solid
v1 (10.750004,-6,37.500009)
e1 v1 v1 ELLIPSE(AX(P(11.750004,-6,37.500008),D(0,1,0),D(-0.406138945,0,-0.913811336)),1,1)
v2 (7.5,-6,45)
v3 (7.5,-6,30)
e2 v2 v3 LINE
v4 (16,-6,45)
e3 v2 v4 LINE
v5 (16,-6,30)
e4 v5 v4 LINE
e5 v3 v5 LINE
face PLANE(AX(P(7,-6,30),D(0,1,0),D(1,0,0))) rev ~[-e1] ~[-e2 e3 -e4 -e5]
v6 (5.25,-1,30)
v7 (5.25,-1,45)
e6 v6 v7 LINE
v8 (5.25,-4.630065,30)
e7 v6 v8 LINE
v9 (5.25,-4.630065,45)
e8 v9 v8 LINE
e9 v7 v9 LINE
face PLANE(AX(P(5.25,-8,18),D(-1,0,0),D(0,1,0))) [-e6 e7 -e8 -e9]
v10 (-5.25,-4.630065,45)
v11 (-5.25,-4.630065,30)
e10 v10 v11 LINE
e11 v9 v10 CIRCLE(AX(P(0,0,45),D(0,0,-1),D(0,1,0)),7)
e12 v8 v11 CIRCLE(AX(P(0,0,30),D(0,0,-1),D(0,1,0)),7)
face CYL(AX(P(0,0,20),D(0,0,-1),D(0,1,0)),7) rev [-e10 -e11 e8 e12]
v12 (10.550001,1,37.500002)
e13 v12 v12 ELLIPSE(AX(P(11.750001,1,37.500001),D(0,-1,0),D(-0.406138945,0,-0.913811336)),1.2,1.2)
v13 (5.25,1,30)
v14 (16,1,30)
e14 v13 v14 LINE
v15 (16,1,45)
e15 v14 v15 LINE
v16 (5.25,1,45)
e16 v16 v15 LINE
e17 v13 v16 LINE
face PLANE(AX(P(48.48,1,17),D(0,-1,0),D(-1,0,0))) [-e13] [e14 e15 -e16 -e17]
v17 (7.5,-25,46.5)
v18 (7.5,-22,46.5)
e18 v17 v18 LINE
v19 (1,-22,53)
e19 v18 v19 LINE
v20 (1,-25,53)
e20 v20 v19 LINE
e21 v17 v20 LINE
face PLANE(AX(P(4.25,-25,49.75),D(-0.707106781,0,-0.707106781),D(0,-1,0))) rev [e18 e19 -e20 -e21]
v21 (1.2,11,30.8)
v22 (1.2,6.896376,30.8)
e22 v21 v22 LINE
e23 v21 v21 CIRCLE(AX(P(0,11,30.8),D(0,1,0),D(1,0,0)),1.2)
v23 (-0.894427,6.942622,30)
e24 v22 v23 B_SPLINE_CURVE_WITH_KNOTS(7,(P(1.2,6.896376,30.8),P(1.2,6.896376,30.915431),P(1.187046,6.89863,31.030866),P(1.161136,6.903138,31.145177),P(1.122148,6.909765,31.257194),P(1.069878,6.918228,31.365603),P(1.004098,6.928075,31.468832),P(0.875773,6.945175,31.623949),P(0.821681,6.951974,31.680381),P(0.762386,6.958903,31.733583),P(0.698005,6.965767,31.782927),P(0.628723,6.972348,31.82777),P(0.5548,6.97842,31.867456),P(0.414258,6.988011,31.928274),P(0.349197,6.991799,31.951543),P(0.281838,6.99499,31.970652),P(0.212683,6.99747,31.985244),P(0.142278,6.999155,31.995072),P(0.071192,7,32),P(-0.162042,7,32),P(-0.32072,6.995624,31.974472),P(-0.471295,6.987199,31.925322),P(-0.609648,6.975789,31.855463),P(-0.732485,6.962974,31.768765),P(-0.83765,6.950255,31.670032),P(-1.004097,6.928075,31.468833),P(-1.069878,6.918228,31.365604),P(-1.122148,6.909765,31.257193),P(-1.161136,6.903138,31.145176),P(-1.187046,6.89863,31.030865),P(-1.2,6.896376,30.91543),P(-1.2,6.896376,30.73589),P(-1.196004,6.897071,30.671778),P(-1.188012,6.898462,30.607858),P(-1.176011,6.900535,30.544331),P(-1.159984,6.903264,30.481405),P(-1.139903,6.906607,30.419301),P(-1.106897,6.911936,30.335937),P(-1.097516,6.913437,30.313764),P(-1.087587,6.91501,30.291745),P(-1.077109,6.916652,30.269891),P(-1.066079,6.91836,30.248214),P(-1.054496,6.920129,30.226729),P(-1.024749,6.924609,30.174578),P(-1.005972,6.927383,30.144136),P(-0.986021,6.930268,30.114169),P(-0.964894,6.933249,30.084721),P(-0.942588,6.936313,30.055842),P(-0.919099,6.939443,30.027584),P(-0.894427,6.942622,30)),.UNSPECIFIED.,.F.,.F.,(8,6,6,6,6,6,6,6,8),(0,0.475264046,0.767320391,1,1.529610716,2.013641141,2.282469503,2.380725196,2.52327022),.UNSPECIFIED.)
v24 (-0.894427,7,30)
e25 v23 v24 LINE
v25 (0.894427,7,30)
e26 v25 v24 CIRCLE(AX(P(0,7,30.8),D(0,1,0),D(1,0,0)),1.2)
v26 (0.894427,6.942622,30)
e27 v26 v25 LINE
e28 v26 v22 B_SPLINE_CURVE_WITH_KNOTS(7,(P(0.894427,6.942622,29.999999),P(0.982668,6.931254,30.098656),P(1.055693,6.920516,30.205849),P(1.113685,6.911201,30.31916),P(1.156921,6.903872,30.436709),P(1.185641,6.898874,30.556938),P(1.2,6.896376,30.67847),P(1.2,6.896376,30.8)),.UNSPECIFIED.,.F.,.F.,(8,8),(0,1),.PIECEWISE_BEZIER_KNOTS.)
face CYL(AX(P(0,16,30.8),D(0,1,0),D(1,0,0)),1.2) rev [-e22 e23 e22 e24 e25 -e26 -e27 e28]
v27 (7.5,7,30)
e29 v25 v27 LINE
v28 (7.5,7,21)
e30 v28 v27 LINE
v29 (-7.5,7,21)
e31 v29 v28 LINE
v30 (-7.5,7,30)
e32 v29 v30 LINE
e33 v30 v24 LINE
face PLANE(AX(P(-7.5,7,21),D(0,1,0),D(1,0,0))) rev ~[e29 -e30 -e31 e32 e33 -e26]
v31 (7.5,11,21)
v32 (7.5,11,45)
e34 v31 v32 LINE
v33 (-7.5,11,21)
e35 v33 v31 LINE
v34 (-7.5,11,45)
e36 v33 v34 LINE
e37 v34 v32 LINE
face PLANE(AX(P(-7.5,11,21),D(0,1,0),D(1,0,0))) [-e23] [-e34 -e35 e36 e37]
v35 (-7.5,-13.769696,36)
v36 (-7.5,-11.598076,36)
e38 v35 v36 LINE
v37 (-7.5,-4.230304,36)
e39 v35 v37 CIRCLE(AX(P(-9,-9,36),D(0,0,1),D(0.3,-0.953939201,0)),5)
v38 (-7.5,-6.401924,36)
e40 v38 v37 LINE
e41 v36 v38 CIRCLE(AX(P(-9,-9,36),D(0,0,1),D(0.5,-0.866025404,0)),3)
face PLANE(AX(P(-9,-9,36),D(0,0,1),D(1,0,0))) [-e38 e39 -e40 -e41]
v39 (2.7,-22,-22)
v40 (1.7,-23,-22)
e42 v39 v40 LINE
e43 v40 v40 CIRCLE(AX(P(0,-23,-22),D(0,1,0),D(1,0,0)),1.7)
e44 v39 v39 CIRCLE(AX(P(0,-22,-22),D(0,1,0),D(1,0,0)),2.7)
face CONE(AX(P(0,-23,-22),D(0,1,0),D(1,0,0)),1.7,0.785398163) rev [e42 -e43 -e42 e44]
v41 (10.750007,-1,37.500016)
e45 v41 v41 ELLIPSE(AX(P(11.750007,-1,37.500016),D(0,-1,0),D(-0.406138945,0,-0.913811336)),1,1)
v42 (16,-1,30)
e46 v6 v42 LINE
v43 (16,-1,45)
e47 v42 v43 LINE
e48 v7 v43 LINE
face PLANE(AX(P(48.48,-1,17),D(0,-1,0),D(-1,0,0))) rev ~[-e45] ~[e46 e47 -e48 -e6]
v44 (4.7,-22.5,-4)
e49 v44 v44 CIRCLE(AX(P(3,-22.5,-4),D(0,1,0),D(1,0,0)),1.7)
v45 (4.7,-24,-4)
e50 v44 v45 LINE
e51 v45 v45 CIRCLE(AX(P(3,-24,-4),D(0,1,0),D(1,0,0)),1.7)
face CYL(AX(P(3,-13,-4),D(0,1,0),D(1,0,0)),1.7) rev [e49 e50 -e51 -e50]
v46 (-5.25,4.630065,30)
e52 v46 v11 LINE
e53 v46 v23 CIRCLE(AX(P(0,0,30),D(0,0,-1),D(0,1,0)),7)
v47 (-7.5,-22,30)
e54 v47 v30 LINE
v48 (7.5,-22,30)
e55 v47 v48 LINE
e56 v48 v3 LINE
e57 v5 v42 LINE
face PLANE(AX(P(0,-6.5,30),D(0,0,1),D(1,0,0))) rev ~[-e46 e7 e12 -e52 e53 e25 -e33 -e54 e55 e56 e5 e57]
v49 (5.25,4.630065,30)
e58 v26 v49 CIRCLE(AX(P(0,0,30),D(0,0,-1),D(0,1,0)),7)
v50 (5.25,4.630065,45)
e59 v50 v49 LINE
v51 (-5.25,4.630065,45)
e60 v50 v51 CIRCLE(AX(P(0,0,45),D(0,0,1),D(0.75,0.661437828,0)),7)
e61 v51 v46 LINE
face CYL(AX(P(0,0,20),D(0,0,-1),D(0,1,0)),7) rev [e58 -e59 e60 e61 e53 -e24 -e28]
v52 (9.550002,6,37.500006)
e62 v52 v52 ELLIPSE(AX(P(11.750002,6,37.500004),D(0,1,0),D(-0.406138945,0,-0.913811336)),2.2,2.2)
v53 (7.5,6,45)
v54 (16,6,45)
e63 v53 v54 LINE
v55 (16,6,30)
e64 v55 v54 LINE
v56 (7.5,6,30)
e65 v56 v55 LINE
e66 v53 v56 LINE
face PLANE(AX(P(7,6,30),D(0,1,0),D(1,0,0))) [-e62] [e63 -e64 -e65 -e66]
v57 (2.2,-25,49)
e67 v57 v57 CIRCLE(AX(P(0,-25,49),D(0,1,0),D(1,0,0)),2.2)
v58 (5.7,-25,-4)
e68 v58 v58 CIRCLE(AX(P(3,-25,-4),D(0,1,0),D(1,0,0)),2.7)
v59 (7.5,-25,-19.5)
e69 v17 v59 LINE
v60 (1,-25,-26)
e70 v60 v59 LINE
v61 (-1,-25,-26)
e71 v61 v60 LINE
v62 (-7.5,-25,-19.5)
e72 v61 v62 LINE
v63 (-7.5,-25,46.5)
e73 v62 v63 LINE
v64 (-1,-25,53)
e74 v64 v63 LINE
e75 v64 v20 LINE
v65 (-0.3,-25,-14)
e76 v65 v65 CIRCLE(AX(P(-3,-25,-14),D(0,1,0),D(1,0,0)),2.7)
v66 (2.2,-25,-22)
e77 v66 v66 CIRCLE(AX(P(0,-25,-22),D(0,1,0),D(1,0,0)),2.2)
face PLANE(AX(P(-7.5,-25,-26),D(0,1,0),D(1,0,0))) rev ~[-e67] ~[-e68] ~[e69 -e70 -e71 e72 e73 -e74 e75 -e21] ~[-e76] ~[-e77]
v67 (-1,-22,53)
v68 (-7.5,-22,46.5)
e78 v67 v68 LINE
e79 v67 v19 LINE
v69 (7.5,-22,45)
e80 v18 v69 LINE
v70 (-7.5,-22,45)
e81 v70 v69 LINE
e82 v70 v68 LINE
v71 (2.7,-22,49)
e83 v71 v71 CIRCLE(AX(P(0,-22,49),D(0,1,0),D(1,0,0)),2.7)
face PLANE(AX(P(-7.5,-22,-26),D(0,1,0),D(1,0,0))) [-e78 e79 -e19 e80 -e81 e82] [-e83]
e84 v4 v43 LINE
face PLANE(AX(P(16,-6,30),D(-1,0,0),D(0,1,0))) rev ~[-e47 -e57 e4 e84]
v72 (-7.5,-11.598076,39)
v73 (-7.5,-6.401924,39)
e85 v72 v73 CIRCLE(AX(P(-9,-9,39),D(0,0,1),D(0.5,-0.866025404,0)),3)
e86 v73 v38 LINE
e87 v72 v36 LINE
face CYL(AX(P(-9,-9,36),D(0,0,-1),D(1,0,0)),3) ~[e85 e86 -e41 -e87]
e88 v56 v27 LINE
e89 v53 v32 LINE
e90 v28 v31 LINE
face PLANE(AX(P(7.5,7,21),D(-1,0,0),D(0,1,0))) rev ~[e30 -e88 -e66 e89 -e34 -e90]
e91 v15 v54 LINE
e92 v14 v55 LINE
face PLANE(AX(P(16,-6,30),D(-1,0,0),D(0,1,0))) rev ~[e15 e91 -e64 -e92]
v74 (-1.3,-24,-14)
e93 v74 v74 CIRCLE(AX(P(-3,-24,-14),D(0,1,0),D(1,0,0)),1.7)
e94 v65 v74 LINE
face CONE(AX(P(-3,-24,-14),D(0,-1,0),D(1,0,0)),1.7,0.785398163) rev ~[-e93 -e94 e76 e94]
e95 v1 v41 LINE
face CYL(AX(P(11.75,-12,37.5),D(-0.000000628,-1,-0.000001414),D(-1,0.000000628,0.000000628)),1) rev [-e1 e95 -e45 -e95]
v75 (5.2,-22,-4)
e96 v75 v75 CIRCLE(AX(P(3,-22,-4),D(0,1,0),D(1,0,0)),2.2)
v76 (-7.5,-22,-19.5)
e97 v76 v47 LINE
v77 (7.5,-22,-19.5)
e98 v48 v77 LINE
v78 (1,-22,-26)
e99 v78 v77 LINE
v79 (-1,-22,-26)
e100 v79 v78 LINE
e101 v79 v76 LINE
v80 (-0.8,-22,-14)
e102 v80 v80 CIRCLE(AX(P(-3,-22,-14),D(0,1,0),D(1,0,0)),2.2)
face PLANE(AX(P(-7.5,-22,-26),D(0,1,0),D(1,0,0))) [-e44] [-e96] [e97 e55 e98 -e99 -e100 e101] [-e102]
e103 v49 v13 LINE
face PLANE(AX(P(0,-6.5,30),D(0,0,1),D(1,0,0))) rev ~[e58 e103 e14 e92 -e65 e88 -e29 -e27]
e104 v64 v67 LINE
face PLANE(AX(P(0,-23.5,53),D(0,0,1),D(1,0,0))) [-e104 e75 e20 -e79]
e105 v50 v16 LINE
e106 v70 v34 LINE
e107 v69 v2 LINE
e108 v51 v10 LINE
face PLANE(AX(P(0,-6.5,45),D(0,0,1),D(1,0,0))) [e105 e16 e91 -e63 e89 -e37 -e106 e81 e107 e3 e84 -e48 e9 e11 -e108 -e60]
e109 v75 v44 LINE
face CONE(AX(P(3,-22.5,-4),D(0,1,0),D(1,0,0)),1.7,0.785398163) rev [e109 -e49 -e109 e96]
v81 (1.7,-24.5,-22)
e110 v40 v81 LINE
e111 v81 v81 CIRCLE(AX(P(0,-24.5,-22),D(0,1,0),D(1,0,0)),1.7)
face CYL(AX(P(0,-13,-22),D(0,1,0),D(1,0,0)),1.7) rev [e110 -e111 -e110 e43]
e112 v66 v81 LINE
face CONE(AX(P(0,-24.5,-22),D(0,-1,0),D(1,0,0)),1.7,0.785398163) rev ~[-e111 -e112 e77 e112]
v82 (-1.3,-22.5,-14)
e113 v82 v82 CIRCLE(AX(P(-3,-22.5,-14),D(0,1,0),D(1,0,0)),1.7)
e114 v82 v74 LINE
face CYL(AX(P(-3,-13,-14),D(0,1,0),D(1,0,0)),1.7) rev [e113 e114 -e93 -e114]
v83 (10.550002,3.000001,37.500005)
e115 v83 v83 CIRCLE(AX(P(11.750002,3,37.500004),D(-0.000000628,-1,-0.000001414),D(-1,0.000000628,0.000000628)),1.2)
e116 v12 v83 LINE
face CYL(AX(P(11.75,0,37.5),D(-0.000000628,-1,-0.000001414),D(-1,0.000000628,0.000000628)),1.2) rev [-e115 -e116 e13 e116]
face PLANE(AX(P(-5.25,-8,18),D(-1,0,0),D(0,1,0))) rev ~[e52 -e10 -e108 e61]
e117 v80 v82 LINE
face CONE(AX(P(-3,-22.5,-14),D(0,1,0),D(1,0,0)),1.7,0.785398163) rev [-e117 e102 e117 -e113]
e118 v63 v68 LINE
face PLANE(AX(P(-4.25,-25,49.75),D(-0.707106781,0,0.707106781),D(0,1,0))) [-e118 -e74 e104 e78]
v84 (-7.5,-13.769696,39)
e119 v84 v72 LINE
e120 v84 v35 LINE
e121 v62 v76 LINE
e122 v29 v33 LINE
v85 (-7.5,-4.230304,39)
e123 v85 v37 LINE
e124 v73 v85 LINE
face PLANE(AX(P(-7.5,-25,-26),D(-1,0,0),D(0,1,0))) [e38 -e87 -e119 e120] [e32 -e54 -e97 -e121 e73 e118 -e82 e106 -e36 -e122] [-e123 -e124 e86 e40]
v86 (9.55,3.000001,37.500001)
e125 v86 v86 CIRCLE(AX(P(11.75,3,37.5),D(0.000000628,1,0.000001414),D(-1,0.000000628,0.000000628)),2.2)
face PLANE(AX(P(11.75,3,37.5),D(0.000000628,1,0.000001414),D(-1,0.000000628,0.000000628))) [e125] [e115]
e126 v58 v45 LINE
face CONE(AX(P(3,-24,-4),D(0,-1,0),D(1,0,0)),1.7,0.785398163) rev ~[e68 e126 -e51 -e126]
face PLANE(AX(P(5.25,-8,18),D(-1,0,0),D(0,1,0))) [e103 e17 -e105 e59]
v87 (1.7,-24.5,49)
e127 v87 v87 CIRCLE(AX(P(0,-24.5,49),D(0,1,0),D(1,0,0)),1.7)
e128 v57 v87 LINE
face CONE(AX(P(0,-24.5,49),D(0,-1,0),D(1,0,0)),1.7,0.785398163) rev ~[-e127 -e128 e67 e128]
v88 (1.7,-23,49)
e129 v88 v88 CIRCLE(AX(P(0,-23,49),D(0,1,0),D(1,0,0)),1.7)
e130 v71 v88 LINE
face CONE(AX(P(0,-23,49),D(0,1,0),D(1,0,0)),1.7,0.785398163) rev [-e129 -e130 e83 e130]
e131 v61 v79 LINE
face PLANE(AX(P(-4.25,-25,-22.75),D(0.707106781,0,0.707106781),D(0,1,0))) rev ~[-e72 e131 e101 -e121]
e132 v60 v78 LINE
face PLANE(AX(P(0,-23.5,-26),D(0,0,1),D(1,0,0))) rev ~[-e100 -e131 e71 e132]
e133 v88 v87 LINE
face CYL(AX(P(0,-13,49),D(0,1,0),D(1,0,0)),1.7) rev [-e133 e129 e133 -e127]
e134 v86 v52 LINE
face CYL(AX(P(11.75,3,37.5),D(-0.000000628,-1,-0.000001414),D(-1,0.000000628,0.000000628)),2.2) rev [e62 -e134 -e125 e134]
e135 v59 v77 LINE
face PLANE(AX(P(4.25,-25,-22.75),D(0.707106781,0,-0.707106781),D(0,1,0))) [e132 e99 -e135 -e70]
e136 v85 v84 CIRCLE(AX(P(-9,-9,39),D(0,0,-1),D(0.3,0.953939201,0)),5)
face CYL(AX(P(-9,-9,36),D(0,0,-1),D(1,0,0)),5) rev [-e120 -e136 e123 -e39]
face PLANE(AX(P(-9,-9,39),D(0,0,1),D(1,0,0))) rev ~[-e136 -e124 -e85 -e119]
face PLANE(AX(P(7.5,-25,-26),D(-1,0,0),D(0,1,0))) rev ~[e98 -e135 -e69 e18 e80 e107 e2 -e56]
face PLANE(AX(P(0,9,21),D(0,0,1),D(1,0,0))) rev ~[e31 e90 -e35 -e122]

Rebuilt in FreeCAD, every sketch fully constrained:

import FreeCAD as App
import Part
import Sketcher
Q = App.Units.Quantity


def edges_at(feature, points):
    """Names of the edges that pass closest to the given points."""
    edges = feature.Shape.Edges
    near = lambda p: min(range(len(edges)), key=lambda i: edges[i].distToShape(Part.Vertex(*p))[0])
    return sorted({f"Edge{near(p) + 1}" for p in points})


def add_polygon(sketch, points):
    """Adds a closed chain of lines whose ends are joined by coincident constraints."""
    first, n = sketch.GeometryCount, len(points)
    for a, b in zip(points, points[1:] + points[:1]):
        sketch.addGeometry(Part.LineSegment(App.Vector(*a, 0), App.Vector(*b, 0)), False)
    for i in range(n):
        sketch.addConstraint(Sketcher.Constraint("Coincident", first + i, 2, first + (i + 1) % n, 1))

doc = App.newDocument("Part")
body = doc.addObject("PartDesign::Body", "Body")

sketch1 = doc.addObject("Sketcher::SketchObject", "Sketch")
body.addObject(sketch1)
sketch1.AttachmentSupport = (doc.XY_Plane, [""])
sketch1.MapMode = "FlatFace"
sketch1.AttachmentOffset = App.Placement(App.Vector(0, 0, 36), App.Rotation())
sketch1.addGeometry(Part.Circle(App.Vector(-9, -9, 0), App.Vector(0, 0, 1), 3), False)
sketch1.addConstraint(Sketcher.Constraint("Diameter", 0, Q("6 mm")))
sketch1.addConstraint(Sketcher.Constraint("DistanceX", 0, 3, -1, 1, Q("9 mm")))
sketch1.addConstraint(Sketcher.Constraint("DistanceY", 0, 3, -1, 1, Q("9 mm")))
pad1 = doc.addObject("PartDesign::Pad", "Pad")
body.addObject(pad1)
pad1.Profile = sketch1
pad1.Length = 3
body2 = doc.addObject("PartDesign::Body", "Body001")

sketch2 = doc.addObject("Sketcher::SketchObject", "Sketch001")
body2.addObject(sketch2)
sketch2.AttachmentSupport = (doc.getObject("XY_Plane001"), [""])
sketch2.MapMode = "FlatFace"
sketch2.AttachmentOffset = App.Placement(App.Vector(0, 0, 36), App.Rotation())
sketch2.addGeometry(Part.Circle(App.Vector(-9, -9, 0), App.Vector(0, 0, 1), 5), False)
sketch2.addConstraint(Sketcher.Constraint("Diameter", 0, Q("10 mm")))
sketch2.addConstraint(Sketcher.Constraint("DistanceX", 0, 3, -1, 1, Q("9 mm")))
sketch2.addConstraint(Sketcher.Constraint("DistanceY", 0, 3, -1, 1, Q("9 mm")))
pad2 = doc.addObject("PartDesign::Pad", "Pad001")
body2.addObject(pad2)
pad2.Profile = sketch2
pad2.Length = 3
doc.recompute()

boolean = doc.addObject("PartDesign::Boolean", "Boolean")
body2.addObject(boolean)
boolean.Type = "Cut"
boolean.addObjects([body])
body3 = doc.addObject("PartDesign::Body", "Body002")

sketch3 = doc.addObject("Sketcher::SketchObject", "Sketch002")
body3.addObject(sketch3)
sketch3.AttachmentSupport = (doc.getObject("XZ_Plane002"), [""])
sketch3.MapMode = "FlatFace"
sketch3.AttachmentOffset = App.Placement(App.Vector(0, 0, -16), App.Rotation())
sketch3.addGeometry(Part.Circle(App.Vector(0, 35.8, 0), App.Vector(0, 0, 1), 1.2), False)
sketch3.addConstraint(Sketcher.Constraint("PointOnObject", 0, 3, -2))
sketch3.addConstraint(Sketcher.Constraint("Diameter", 0, Q("2.4 mm")))
sketch3.addConstraint(Sketcher.Constraint("DistanceY", -1, 1, 0, 3, Q("35.8 mm")))
pad3 = doc.addObject("PartDesign::Pad", "Pad002")
body3.addObject(pad3)
pad3.Profile = sketch3
pad3.Length = 13
body4 = doc.addObject("PartDesign::Body", "Body003")

sketch4 = doc.addObject("Sketcher::SketchObject", "Sketch003")
body4.addObject(sketch4)
sketch4.AttachmentSupport = (doc.getObject("XY_Plane003"), [""])
sketch4.MapMode = "FlatFace"
sketch4.addGeometry(Part.Circle(App.Vector(0, 0, 0), App.Vector(0, 0, 1), 1), False)
sketch4.addConstraint(Sketcher.Constraint("Coincident", 0, 3, -1, 1))
sketch4.addConstraint(Sketcher.Constraint("Diameter", 0, Q("2 mm")))
pad4 = doc.addObject("PartDesign::Pad", "Pad003")
body4.addObject(pad4)
pad4.Profile = sketch4
pad4.Length = 12
body5 = doc.addObject("PartDesign::Body", "Body004")
doc.recompute()

body4.Placement = App.Placement(App.Vector(0, 0, 0), App.Rotation(App.Vector(1, 0, 0), 89.999919))
boolean2 = doc.addObject("PartDesign::Boolean", "Boolean001")
body5.addObject(boolean2)
boolean2.Type = "Fuse"
boolean2.addObjects([body4])
body6 = doc.addObject("PartDesign::Body", "Body005")
doc.recompute()

body5.Placement = App.Placement(App.Vector(0, 0, 0), App.Rotation(App.Vector(0, 1, 0), 359.999964))
boolean3 = doc.addObject("PartDesign::Boolean", "Boolean002")
body6.addObject(boolean3)
boolean3.Type = "Fuse"
boolean3.addObjects([body5])
body7 = doc.addObject("PartDesign::Body", "Body006")
doc.recompute()

body6.Placement = App.Placement(App.Vector(11.75, -12, 42.5), App.Rotation(App.Vector(0, 0, 1), 179.999964))
boolean4 = doc.addObject("PartDesign::Boolean", "Boolean003")
body7.addObject(boolean4)
boolean4.Type = "Fuse"
boolean4.addObjects([body6])
body8 = doc.addObject("PartDesign::Body", "Body007")

sketch5 = doc.addObject("Sketcher::SketchObject", "Sketch004")
body8.addObject(sketch5)
sketch5.AttachmentSupport = (doc.getObject("XY_Plane007"), [""])
sketch5.MapMode = "FlatFace"
sketch5.addGeometry(Part.Circle(App.Vector(0, 0, 0), App.Vector(0, 0, 1), 2.2), False)
sketch5.addConstraint(Sketcher.Constraint("Coincident", 0, 3, -1, 1))
sketch5.addConstraint(Sketcher.Constraint("Diameter", 0, Q("4.4 mm")))
pad5 = doc.addObject("PartDesign::Pad", "Pad004")
body8.addObject(pad5)
pad5.Profile = sketch5
pad5.Length = 12
body9 = doc.addObject("PartDesign::Body", "Body008")
doc.recompute()

body8.Placement = App.Placement(App.Vector(0, 0, 0), App.Rotation(App.Vector(1, 0, 0), 89.999919))
boolean5 = doc.addObject("PartDesign::Boolean", "Boolean004")
body9.addObject(boolean5)
boolean5.Type = "Fuse"
boolean5.addObjects([body8])
body10 = doc.addObject("PartDesign::Body", "Body009")
doc.recompute()

body9.Placement = App.Placement(App.Vector(0, 0, 0), App.Rotation(App.Vector(0, 1, 0), 359.999964))
boolean6 = doc.addObject("PartDesign::Boolean", "Boolean005")
body10.addObject(boolean6)
boolean6.Type = "Fuse"
boolean6.addObjects([body9])
body11 = doc.addObject("PartDesign::Body", "Body010")
doc.recompute()

body10.Placement = App.Placement(App.Vector(11.75, 3, 42.5), App.Rotation(App.Vector(0, 0, 1), 179.999964))
boolean7 = doc.addObject("PartDesign::Boolean", "Boolean006")
body11.addObject(boolean7)
boolean7.Type = "Fuse"
boolean7.addObjects([body10])
body12 = doc.addObject("PartDesign::Body", "Body011")

sketch6 = doc.addObject("Sketcher::SketchObject", "Sketch005")
body12.addObject(sketch6)
sketch6.AttachmentSupport = (doc.getObject("XY_Plane011"), [""])
sketch6.MapMode = "FlatFace"
sketch6.addGeometry(Part.Circle(App.Vector(0, 0, 0), App.Vector(0, 0, 1), 1.2), False)
sketch6.addConstraint(Sketcher.Constraint("Coincident", 0, 3, -1, 1))
sketch6.addConstraint(Sketcher.Constraint("Diameter", 0, Q("2.4 mm")))
pad6 = doc.addObject("PartDesign::Pad", "Pad005")
body12.addObject(pad6)
pad6.Profile = sketch6
pad6.Length = 12
body13 = doc.addObject("PartDesign::Body", "Body012")
doc.recompute()

body12.Placement = App.Placement(App.Vector(0, 0, 0), App.Rotation(App.Vector(1, 0, 0), 89.999919))
boolean8 = doc.addObject("PartDesign::Boolean", "Boolean007")
body13.addObject(boolean8)
boolean8.Type = "Fuse"
boolean8.addObjects([body12])
body14 = doc.addObject("PartDesign::Body", "Body013")
doc.recompute()

body13.Placement = App.Placement(App.Vector(0, 0, 0), App.Rotation(App.Vector(0, 1, 0), 359.999964))
boolean9 = doc.addObject("PartDesign::Boolean", "Boolean008")
body14.addObject(boolean9)
boolean9.Type = "Fuse"
boolean9.addObjects([body13])
body15 = doc.addObject("PartDesign::Body", "Body014")
doc.recompute()

body14.Placement = App.Placement(App.Vector(11.75, 0, 42.5), App.Rotation(App.Vector(0, 0, 1), 179.999964))
boolean10 = doc.addObject("PartDesign::Boolean", "Boolean009")
body15.addObject(boolean10)
boolean10.Type = "Fuse"
boolean10.addObjects([body14])
doc.recompute()

boolean11 = doc.addObject("PartDesign::Boolean", "Boolean010")
body15.addObject(boolean11)
boolean11.Type = "Fuse"
boolean11.addObjects([body11])
doc.recompute()

boolean12 = doc.addObject("PartDesign::Boolean", "Boolean011")
body15.addObject(boolean12)
boolean12.Type = "Fuse"
boolean12.addObjects([body7])
body16 = doc.addObject("PartDesign::Body", "Body015")

sketch7 = doc.addObject("Sketcher::SketchObject", "Sketch006")
body16.addObject(sketch7)
sketch7.AttachmentSupport = (doc.getObject("XY_Plane015"), [""])
sketch7.MapMode = "FlatFace"
sketch7.AttachmentOffset = App.Placement(App.Vector(0, 0, 22), App.Rotation())
add_polygon(sketch7, [(48.5, -1), (48.5, 1), (-0.5, 1), (-0.5, -1)])
sketch7.addConstraint(Sketcher.Constraint("Vertical", 0))
sketch7.addConstraint(Sketcher.Constraint("Horizontal", 1))
sketch7.addConstraint(Sketcher.Constraint("Vertical", 2))
sketch7.addConstraint(Sketcher.Constraint("Horizontal", 3))
sketch7.addConstraint(Sketcher.Constraint("DistanceX", 1, 2, 1, 1, Q("49 mm")))
sketch7.addConstraint(Sketcher.Constraint("DistanceY", 0, 1, 0, 2, Q("2 mm")))
sketch7.addConstraint(Sketcher.Constraint("DistanceY", -1, 1, 0, 2, Q("1 mm")))
sketch7.addConstraint(Sketcher.Constraint("DistanceX", -1, 1, 0, 2, Q("48.48 mm")))
pad7 = doc.addObject("PartDesign::Pad", "Pad006")
body16.addObject(pad7)
pad7.Profile = sketch7
pad7.Length = 32
body17 = doc.addObject("PartDesign::Body", "Body016")

sketch8 = doc.addObject("Sketcher::SketchObject", "Sketch007")
body17.addObject(sketch8)
sketch8.AttachmentSupport = (doc.getObject("XY_Plane016"), [""])
sketch8.MapMode = "FlatFace"
sketch8.AttachmentOffset = App.Placement(App.Vector(0, 0, 35), App.Rotation())
add_polygon(sketch8, [(7, 6), (7, -6), (16, -6), (16, 6)])
sketch8.addConstraint(Sketcher.Constraint("Vertical", 0))
sketch8.addConstraint(Sketcher.Constraint("Horizontal", 1))
sketch8.addConstraint(Sketcher.Constraint("Vertical", 2))
sketch8.addConstraint(Sketcher.Constraint("Horizontal", 3))
sketch8.addConstraint(Sketcher.Constraint("DistanceX", 1, 1, 1, 2, Q("9 mm")))
sketch8.addConstraint(Sketcher.Constraint("DistanceY", 0, 2, 0, 1, Q("12 mm")))
sketch8.addConstraint(Sketcher.Constraint("DistanceX", -1, 1, 0, 2, Q("7 mm")))
sketch8.addConstraint(Sketcher.Constraint("DistanceY", 0, 2, -1, 1, Q("6 mm")))
pad8 = doc.addObject("PartDesign::Pad", "Pad007")
body17.addObject(pad8)
pad8.Profile = sketch8
pad8.Length = 15
body18 = doc.addObject("PartDesign::Body", "Body017")

sketch9 = doc.addObject("Sketcher::SketchObject", "Sketch008")
body18.addObject(sketch9)
sketch9.AttachmentSupport = (doc.getObject("XY_Plane017"), [""])
sketch9.MapMode = "FlatFace"
sketch9.AttachmentOffset = App.Placement(App.Vector(0, 0, 18), App.Rotation())
add_polygon(sketch9, [(-8, 5), (-8, -5), (8, -5), (8, 5)])
sketch9.addConstraint(Sketcher.Constraint("Vertical", 0))
sketch9.addConstraint(Sketcher.Constraint("Horizontal", 1))
sketch9.addConstraint(Sketcher.Constraint("Vertical", 2))
sketch9.addConstraint(Sketcher.Constraint("Horizontal", 3))
sketch9.addConstraint(Sketcher.Constraint("Symmetric", 0, 2, 2, 2, -1, 1))
sketch9.addConstraint(Sketcher.Constraint("DistanceX", 1, 1, 1, 2, Q("16 mm")))
sketch9.addConstraint(Sketcher.Constraint("DistanceY", 0, 2, 0, 1, Q("10.5 mm")))
pad9 = doc.addObject("PartDesign::Pad", "Pad008")
body18.addObject(pad9)
pad9.Profile = sketch9
pad9.Length = 28
body19 = doc.addObject("PartDesign::Body", "Body018")

sketch10 = doc.addObject("Sketcher::SketchObject", "Sketch009")
body19.addObject(sketch10)
sketch10.AttachmentSupport = (doc.getObject("XY_Plane018"), [""])
sketch10.MapMode = "FlatFace"
sketch10.AttachmentOffset = App.Placement(App.Vector(0, 0, 20), App.Rotation())
sketch10.addGeometry(Part.Circle(App.Vector(0, 0, 0), App.Vector(0, 0, 1), 7), False)
sketch10.addConstraint(Sketcher.Constraint("Coincident", 0, 3, -1, 1))
sketch10.addConstraint(Sketcher.Constraint("Diameter", 0, Q("14 mm")))
pad10 = doc.addObject("PartDesign::Pad", "Pad009")
body19.addObject(pad10)
pad10.Profile = sketch10
pad10.Length = 26
doc.recompute()

boolean13 = doc.addObject("PartDesign::Boolean", "Boolean012")
body19.addObject(boolean13)
boolean13.Type = "Common"
boolean13.addObjects([body18])
body20 = doc.addObject("PartDesign::Body", "Body019")
doc.recompute()

body19.Placement = App.Placement(App.Vector(0, 0, 5), App.Rotation(App.Vector(0, 0, 1), 90))
boolean14 = doc.addObject("PartDesign::Boolean", "Boolean013")
body20.addObject(boolean14)
boolean14.Type = "Fuse"
boolean14.addObjects([body19])
body21 = doc.addObject("PartDesign::Body", "Body020")

sketch11 = doc.addObject("Sketcher::SketchObject", "Sketch010")
body21.addObject(sketch11)
sketch11.AttachmentSupport = (doc.getObject("XY_Plane020"), [""])
sketch11.MapMode = "FlatFace"
sketch11.AttachmentOffset = App.Placement(App.Vector(0, 0, 35), App.Rotation())
add_polygon(sketch11, [(-8, 9), (-8, -22), (8, -22), (8, 9)])
sketch11.addConstraint(Sketcher.Constraint("Vertical", 0))
sketch11.addConstraint(Sketcher.Constraint("Horizontal", 1))
sketch11.addConstraint(Sketcher.Constraint("Vertical", 2))
sketch11.addConstraint(Sketcher.Constraint("Horizontal", 3))
sketch11.addConstraint(Sketcher.Constraint("DistanceX", 1, 1, 1, 2, Q("15 mm")))
sketch11.addConstraint(Sketcher.Constraint("DistanceY", 0, 2, 0, 1, Q("31 mm")))
sketch11.addConstraint(Sketcher.Constraint("DistanceY", 0, 2, -1, 1, Q("22 mm")))
sketch11.addConstraint(Sketcher.Constraint("DistanceX", 0, 2, -1, 1, Q("7.5 mm")))
pad11 = doc.addObject("PartDesign::Pad", "Pad010")
body21.addObject(pad11)
pad11.Profile = sketch11
pad11.Length = 15
doc.recompute()

boolean15 = doc.addObject("PartDesign::Boolean", "Boolean014")
body21.addObject(boolean15)
boolean15.Type = "Cut"
boolean15.addObjects([body20])
doc.recompute()

boolean16 = doc.addObject("PartDesign::Boolean", "Boolean015")
body21.addObject(boolean16)
boolean16.Type = "Fuse"
boolean16.addObjects([body17])
doc.recompute()

boolean17 = doc.addObject("PartDesign::Boolean", "Boolean016")
body21.addObject(boolean17)
boolean17.Type = "Cut"
boolean17.addObjects([body16])
doc.recompute()

boolean18 = doc.addObject("PartDesign::Boolean", "Boolean017")
body21.addObject(boolean18)
boolean18.Type = "Cut"
boolean18.addObjects([body15])
body22 = doc.addObject("PartDesign::Body", "Body021")

sketch12 = doc.addObject("Sketcher::SketchObject", "Sketch011")
body22.addObject(sketch12)
sketch12.AttachmentSupport = (doc.getObject("XY_Plane021"), [""])
sketch12.MapMode = "FlatFace"
sketch12.AttachmentOffset = App.Placement(App.Vector(0, 0, 26), App.Rotation())
add_polygon(sketch12, [(-7.5, 11), (-7.5, 7), (7.5, 7), (7.5, 11)])
sketch12.addConstraint(Sketcher.Constraint("Vertical", 0))
sketch12.addConstraint(Sketcher.Constraint("Horizontal", 1))
sketch12.addConstraint(Sketcher.Constraint("Vertical", 2))
sketch12.addConstraint(Sketcher.Constraint("Horizontal", 3))
sketch12.addConstraint(Sketcher.Constraint("DistanceX", 1, 1, 1, 2, Q("15 mm")))
sketch12.addConstraint(Sketcher.Constraint("DistanceY", 0, 2, 0, 1, Q("4 mm")))
sketch12.addConstraint(Sketcher.Constraint("DistanceY", -1, 1, 0, 2, Q("7 mm")))
sketch12.addConstraint(Sketcher.Constraint("DistanceX", 0, 2, -1, 1, Q("7.5 mm")))
pad12 = doc.addObject("PartDesign::Pad", "Pad011")
body22.addObject(pad12)
pad12.Profile = sketch12
pad12.Length = 24
doc.recompute()

boolean19 = doc.addObject("PartDesign::Boolean", "Boolean018")
body22.addObject(boolean19)
boolean19.Type = "Fuse"
boolean19.addObjects([body21])
doc.recompute()

boolean20 = doc.addObject("PartDesign::Boolean", "Boolean019")
body22.addObject(boolean20)
boolean20.Type = "Cut"
boolean20.addObjects([body3])
body23 = doc.addObject("PartDesign::Body", "Body022")
doc.recompute()

body22.Placement = App.Placement(App.Vector(0, 0, -5), App.Rotation(App.Vector(0, 0, 1), 0))
boolean21 = doc.addObject("PartDesign::Boolean", "Boolean020")
body23.addObject(boolean21)
boolean21.Type = "Fuse"
boolean21.addObjects([body22])
doc.recompute()

boolean22 = doc.addObject("PartDesign::Boolean", "Boolean021")
body23.addObject(boolean22)
boolean22.Type = "Cut"
boolean22.addObjects([body2])
body24 = doc.addObject("PartDesign::Body", "Body023")

sketch13 = doc.addObject("Sketcher::SketchObject", "Sketch012")
body24.addObject(sketch13)
sketch13.AttachmentSupport = (doc.getObject("XZ_Plane023"), [""])
sketch13.MapMode = "FlatFace"
sketch13.AttachmentOffset = App.Placement(App.Vector(0, 0, 13), App.Rotation())
sketch13.addGeometry(Part.Circle(App.Vector(0, 49, 0), App.Vector(0, 0, 1), 1.7), False)
sketch13.addConstraint(Sketcher.Constraint("PointOnObject", 0, 3, -2))
sketch13.addConstraint(Sketcher.Constraint("Diameter", 0, Q("3.4 mm")))
sketch13.addConstraint(Sketcher.Constraint("DistanceY", -1, 1, 0, 3, Q("49 mm")))
pad13 = doc.addObject("PartDesign::Pad", "Pad012")
body24.addObject(pad13)
pad13.Profile = sketch13
pad13.Length = 21
body25 = doc.addObject("PartDesign::Body", "Body024")

sketch14 = doc.addObject("Sketcher::SketchObject", "Sketch013")
body25.addObject(sketch14)
sketch14.AttachmentSupport = (doc.getObject("XY_Plane024"), [""])
sketch14.MapMode = "FlatFace"
sketch14.AttachmentOffset = App.Placement(App.Vector(0, 0, 45), App.Rotation())
add_polygon(sketch14, [(-7.5, -22), (-7.5, -25), (7.5, -25), (7.5, -22)])
sketch14.addConstraint(Sketcher.Constraint("Vertical", 0))
sketch14.addConstraint(Sketcher.Constraint("Horizontal", 1))
sketch14.addConstraint(Sketcher.Constraint("Vertical", 2))
sketch14.addConstraint(Sketcher.Constraint("Horizontal", 3))
sketch14.addConstraint(Sketcher.Constraint("DistanceX", 1, 1, 1, 2, Q("15 mm")))
sketch14.addConstraint(Sketcher.Constraint("DistanceY", 0, 2, 0, 1, Q("3 mm")))
sketch14.addConstraint(Sketcher.Constraint("DistanceY", 0, 2, -1, 1, Q("25 mm")))
sketch14.addConstraint(Sketcher.Constraint("DistanceX", 0, 2, -1, 1, Q("7.5 mm")))
pad14 = doc.addObject("PartDesign::Pad", "Pad013")
body25.addObject(pad14)
pad14.Profile = sketch14
pad14.Length = 8
doc.recompute()

boolean23 = doc.addObject("PartDesign::Boolean", "Boolean022")
body25.addObject(boolean23)
boolean23.Type = "Cut"
boolean23.addObjects([body24])
body26 = doc.addObject("PartDesign::Body", "Body025")

sketch15 = doc.addObject("Sketcher::SketchObject", "Sketch014")
body26.addObject(sketch15)
sketch15.AttachmentSupport = (doc.getObject("XZ_Plane025"), [""])
sketch15.MapMode = "FlatFace"
sketch15.AttachmentOffset = App.Placement(App.Vector(0, 0, 13), App.Rotation())
sketch15.addGeometry(Part.Circle(App.Vector(0, -22, 0), App.Vector(0, 0, 1), 1.7), False)
sketch15.addConstraint(Sketcher.Constraint("PointOnObject", 0, 3, -2))
sketch15.addConstraint(Sketcher.Constraint("Diameter", 0, Q("3.4 mm")))
sketch15.addConstraint(Sketcher.Constraint("DistanceY", 0, 3, -1, 1, Q("22 mm")))
pad15 = doc.addObject("PartDesign::Pad", "Pad014")
body26.addObject(pad15)
pad15.Profile = sketch15
pad15.Length = 21
body27 = doc.addObject("PartDesign::Body", "Body026")
body27.AllowCompound = True

sketch16 = doc.addObject("Sketcher::SketchObject", "Sketch015")
body27.addObject(sketch16)
sketch16.AttachmentSupport = (doc.getObject("XY_Plane026"), [""])
sketch16.MapMode = "FlatFace"
sketch16.AttachmentOffset = App.Placement(App.Vector(0, 0, -26), App.Rotation())
add_polygon(sketch16, [(-7.5, -22), (-7.5, -25), (7.5, -25), (7.5, -22)])
sketch16.addConstraint(Sketcher.Constraint("Vertical", 0))
sketch16.addConstraint(Sketcher.Constraint("Horizontal", 1))
sketch16.addConstraint(Sketcher.Constraint("Vertical", 2))
sketch16.addConstraint(Sketcher.Constraint("Horizontal", 3))
sketch16.addConstraint(Sketcher.Constraint("DistanceX", 1, 1, 1, 2, Q("15 mm")))
sketch16.addConstraint(Sketcher.Constraint("DistanceY", 0, 2, 0, 1, Q("3 mm")))
sketch16.addConstraint(Sketcher.Constraint("DistanceY", 0, 2, -1, 1, Q("25 mm")))
sketch16.addConstraint(Sketcher.Constraint("DistanceX", 0, 2, -1, 1, Q("7.5 mm")))
pad16 = doc.addObject("PartDesign::Pad", "Pad015")
body27.addObject(pad16)
pad16.Profile = sketch16
pad16.Length = 8
doc.recompute()

boolean24 = doc.addObject("PartDesign::Boolean", "Boolean023")
body27.addObject(boolean24)
boolean24.Type = "Cut"
boolean24.addObjects([body26])
doc.recompute()

boolean25 = doc.addObject("PartDesign::Boolean", "Boolean024")
body27.addObject(boolean25)
boolean25.Type = "Fuse"
boolean25.addObjects([body25])
doc.recompute()

chamfer = doc.addObject("PartDesign::Chamfer", "Chamfer")
body27.addObject(chamfer)
chamfer.Base = (boolean25, edges_at(boolean25, [(-1.7, -22, -22), (-1.7, -22, 49)]))
chamfer.Size = 1
body28 = doc.addObject("PartDesign::Body", "Body027")

sketch17 = doc.addObject("Sketcher::SketchObject", "Sketch016")
body28.addObject(sketch17)
sketch17.AttachmentSupport = (doc.getObject("XZ_Plane027"), [""])
sketch17.MapMode = "FlatFace"
sketch17.AttachmentOffset = App.Placement(App.Vector(0, 0, 13), App.Rotation())
sketch17.addGeometry(Part.Circle(App.Vector(3, -4, 0), App.Vector(0, 0, 1), 1.7), False)
sketch17.addConstraint(Sketcher.Constraint("Diameter", 0, Q("3.4 mm")))
sketch17.addConstraint(Sketcher.Constraint("DistanceX", -1, 1, 0, 3, Q("3 mm")))
sketch17.addConstraint(Sketcher.Constraint("DistanceY", 0, 3, -1, 1, Q("4 mm")))
pad17 = doc.addObject("PartDesign::Pad", "Pad016")
body28.addObject(pad17)
pad17.Profile = sketch17
pad17.Length = 21
body29 = doc.addObject("PartDesign::Body", "Body028")
body29.AllowCompound = True

sketch18 = doc.addObject("Sketcher::SketchObject", "Sketch017")
body29.addObject(sketch18)
sketch18.AttachmentSupport = (doc.getObject("XZ_Plane028"), [""])
sketch18.MapMode = "FlatFace"
sketch18.AttachmentOffset = App.Placement(App.Vector(0, 0, 13), App.Rotation())
sketch18.addGeometry(Part.Circle(App.Vector(-3, -14, 0), App.Vector(0, 0, 1), 1.7), False)
sketch18.addConstraint(Sketcher.Constraint("Diameter", 0, Q("3.4 mm")))
sketch18.addConstraint(Sketcher.Constraint("DistanceX", 0, 3, -1, 1, Q("3 mm")))
sketch18.addConstraint(Sketcher.Constraint("DistanceY", 0, 3, -1, 1, Q("14 mm")))
pad18 = doc.addObject("PartDesign::Pad", "Pad017")
body29.addObject(pad18)
pad18.Profile = sketch18
pad18.Length = 21
doc.recompute()

boolean26 = doc.addObject("PartDesign::Boolean", "Boolean025")
body29.addObject(boolean26)
boolean26.Type = "Fuse"
boolean26.addObjects([body28])
body30 = doc.addObject("PartDesign::Body", "Body029")

sketch19 = doc.addObject("Sketcher::SketchObject", "Sketch018")
body30.addObject(sketch19)
sketch19.AttachmentSupport = (doc.getObject("XY_Plane029"), [""])
sketch19.MapMode = "FlatFace"
sketch19.AttachmentOffset = App.Placement(App.Vector(0, 0, -18), App.Rotation())
add_polygon(sketch19, [(-7.5, -22), (-7.5, -25), (7.5, -25), (7.5, -22)])
sketch19.addConstraint(Sketcher.Constraint("Vertical", 0))
sketch19.addConstraint(Sketcher.Constraint("Horizontal", 1))
sketch19.addConstraint(Sketcher.Constraint("Vertical", 2))
sketch19.addConstraint(Sketcher.Constraint("Horizontal", 3))
sketch19.addConstraint(Sketcher.Constraint("DistanceX", 1, 1, 1, 2, Q("15 mm")))
sketch19.addConstraint(Sketcher.Constraint("DistanceY", 0, 2, 0, 1, Q("3 mm")))
sketch19.addConstraint(Sketcher.Constraint("DistanceY", 0, 2, -1, 1, Q("25 mm")))
sketch19.addConstraint(Sketcher.Constraint("DistanceX", 0, 2, -1, 1, Q("7.5 mm")))
pad19 = doc.addObject("PartDesign::Pad", "Pad018")
body30.addObject(pad19)
pad19.Profile = sketch19
pad19.Length = 63
doc.recompute()

boolean27 = doc.addObject("PartDesign::Boolean", "Boolean026")
body30.addObject(boolean27)
boolean27.Type = "Cut"
boolean27.addObjects([body29])
doc.recompute()

chamfer2 = doc.addObject("PartDesign::Chamfer", "Chamfer001")
body30.addObject(chamfer2)
chamfer2.Base = (boolean27, edges_at(boolean27, [(-4.7, -25, -14), (1.3, -25, -4)]))
chamfer2.Size = 1
doc.recompute()

boolean28 = doc.addObject("PartDesign::Boolean", "Boolean027")
body30.addObject(boolean28)
boolean28.Type = "Fuse"
boolean28.addObjects([body27])
doc.recompute()

chamfer3 = doc.addObject("PartDesign::Chamfer", "Chamfer002")
body30.addObject(chamfer3)
chamfer3.Base = (boolean28, edges_at(boolean28, [
    (-7.5, -23.5, -26),
    (7.5, -23.5, -26),
    (7.5, -23.5, 53),
    (-7.5, -23.5, 53),
]))
chamfer3.Size = 6.5
doc.recompute()

boolean29 = doc.addObject("PartDesign::Boolean", "Boolean028")
body30.addObject(boolean29)
boolean29.Type = "Fuse"
boolean29.addObjects([body23])
doc.recompute()

chamfer4 = doc.addObject("PartDesign::Chamfer", "Chamfer003")
body30.addObject(chamfer4)
chamfer4.Base = (boolean29, edges_at(boolean29, [(-4.7, -22, -14), (1.3, -22, -4)]))
chamfer4.Size = 0.5
doc.recompute()

chamfer5 = doc.addObject("PartDesign::Chamfer", "Chamfer004")
body30.addObject(chamfer5)
chamfer5.Base = (chamfer4, edges_at(chamfer4, [(-1.7, -25, -22), (-1.7, -25, 49)]))
chamfer5.Size = 0.5

doc.recompute()
